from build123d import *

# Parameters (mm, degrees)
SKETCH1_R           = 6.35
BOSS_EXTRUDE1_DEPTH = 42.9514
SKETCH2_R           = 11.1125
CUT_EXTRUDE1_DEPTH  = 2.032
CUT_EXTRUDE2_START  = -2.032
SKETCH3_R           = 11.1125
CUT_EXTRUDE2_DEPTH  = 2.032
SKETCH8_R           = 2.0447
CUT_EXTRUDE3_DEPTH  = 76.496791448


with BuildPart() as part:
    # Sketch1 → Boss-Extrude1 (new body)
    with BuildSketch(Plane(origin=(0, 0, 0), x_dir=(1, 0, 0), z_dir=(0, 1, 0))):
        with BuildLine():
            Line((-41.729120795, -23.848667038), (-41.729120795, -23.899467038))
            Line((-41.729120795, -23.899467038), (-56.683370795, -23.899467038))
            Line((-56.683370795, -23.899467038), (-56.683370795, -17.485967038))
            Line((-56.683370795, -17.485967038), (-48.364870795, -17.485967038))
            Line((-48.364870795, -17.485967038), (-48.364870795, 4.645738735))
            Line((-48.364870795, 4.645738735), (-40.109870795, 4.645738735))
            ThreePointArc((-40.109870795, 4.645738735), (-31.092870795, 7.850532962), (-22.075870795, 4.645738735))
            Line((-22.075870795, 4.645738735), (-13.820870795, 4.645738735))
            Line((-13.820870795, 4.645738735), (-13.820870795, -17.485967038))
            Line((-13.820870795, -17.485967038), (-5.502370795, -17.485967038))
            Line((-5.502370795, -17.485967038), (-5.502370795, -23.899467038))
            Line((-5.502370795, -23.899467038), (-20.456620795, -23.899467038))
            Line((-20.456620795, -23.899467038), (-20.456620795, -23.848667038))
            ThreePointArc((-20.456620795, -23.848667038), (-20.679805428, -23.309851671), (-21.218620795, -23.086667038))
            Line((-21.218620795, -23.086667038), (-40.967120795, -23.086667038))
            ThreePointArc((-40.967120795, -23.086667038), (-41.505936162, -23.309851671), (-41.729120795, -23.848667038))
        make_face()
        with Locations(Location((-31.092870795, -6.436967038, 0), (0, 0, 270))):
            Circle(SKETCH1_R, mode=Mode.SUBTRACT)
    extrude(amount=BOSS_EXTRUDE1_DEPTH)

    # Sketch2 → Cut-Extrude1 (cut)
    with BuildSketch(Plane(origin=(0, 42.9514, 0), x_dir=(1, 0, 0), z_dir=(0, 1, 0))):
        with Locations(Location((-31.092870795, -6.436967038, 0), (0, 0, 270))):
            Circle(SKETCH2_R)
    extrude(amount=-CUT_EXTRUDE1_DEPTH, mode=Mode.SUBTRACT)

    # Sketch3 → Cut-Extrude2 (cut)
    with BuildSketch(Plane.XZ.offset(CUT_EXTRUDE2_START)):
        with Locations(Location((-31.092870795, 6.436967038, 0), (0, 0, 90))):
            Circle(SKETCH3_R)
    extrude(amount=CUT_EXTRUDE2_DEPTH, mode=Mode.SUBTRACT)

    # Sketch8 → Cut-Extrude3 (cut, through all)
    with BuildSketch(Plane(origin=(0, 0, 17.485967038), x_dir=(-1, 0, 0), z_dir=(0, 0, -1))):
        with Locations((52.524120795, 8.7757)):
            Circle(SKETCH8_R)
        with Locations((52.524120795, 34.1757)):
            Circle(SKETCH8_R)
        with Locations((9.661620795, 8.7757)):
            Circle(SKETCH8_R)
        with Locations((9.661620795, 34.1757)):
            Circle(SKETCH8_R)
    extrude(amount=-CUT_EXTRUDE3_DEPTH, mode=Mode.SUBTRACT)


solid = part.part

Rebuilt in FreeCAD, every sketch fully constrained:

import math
import FreeCAD as App
import Part
import Sketcher
Q = App.Units.Quantity

doc = App.newDocument("Part")
body = doc.addObject("PartDesign::Body", "Body")

sketch1 = body.newObject("Sketcher::SketchObject", "Sketch")
sketch1.AttachmentSupport = (doc.getObject("XZ_Plane"), [""])
sketch1.MapMode = "FlatFace"
sketch1.addGeometry([
    Part.LineSegment(App.Vector(-41.73, 23.9, 0), App.Vector(-41.73, 23.85, 0)),
    Part.ArcOfCircle(Part.Circle(App.Vector(-40.97, 23.85, 0), App.Vector(0, 0, 1), 0.76), math.radians(-180), math.radians(-90)),
    Part.LineSegment(App.Vector(-40.97, 23.09, 0), App.Vector(-21.22, 23.09, 0)),
    Part.ArcOfCircle(Part.Circle(App.Vector(-21.22, 23.85, 0), App.Vector(0, 0, 1), 0.76), math.radians(-90), math.radians(0)),
    Part.LineSegment(App.Vector(-20.46, 23.85, 0), App.Vector(-20.46, 23.9, 0)),
    Part.LineSegment(App.Vector(-20.46, 23.9, 0), App.Vector(-5.5, 23.9, 0)),
    Part.LineSegment(App.Vector(-5.5, 23.9, 0), App.Vector(-5.5, 17.49, 0)),
    Part.LineSegment(App.Vector(-5.5, 17.49, 0), App.Vector(-13.82, 17.49, 0)),
    Part.LineSegment(App.Vector(-13.82, 17.49, 0), App.Vector(-13.82, -4.65, 0)),
    Part.LineSegment(App.Vector(-13.82, -4.65, 0), App.Vector(-22.08, -4.65, 0)),
    Part.ArcOfCircle(Part.Circle(App.Vector(-31.09, 6.44, 0), App.Vector(0, 0, 1), 14.29), math.radians(-129), math.radians(-51)),
    Part.LineSegment(App.Vector(-40.11, -4.65, 0), App.Vector(-48.36, -4.65, 0)),
    Part.LineSegment(App.Vector(-48.36, -4.65, 0), App.Vector(-48.36, 17.49, 0)),
    Part.LineSegment(App.Vector(-48.36, 17.49, 0), App.Vector(-56.68, 17.49, 0)),
    Part.LineSegment(App.Vector(-56.68, 17.49, 0), App.Vector(-56.68, 23.9, 0)),
    Part.LineSegment(App.Vector(-56.68, 23.9, 0), App.Vector(-41.73, 23.9, 0)),
    Part.Circle(App.Vector(-31.09, 6.44, 0), App.Vector(0, 0, 1), 6.35),
], False)
sketch1.addConstraint([
    Sketcher.Constraint("Tangent", 0, 2, 1, 1),
    Sketcher.Constraint("Tangent", 1, 2, 2, 1),
    Sketcher.Constraint("Tangent", 2, 2, 3, 1),
    Sketcher.Constraint("Tangent", 3, 2, 4, 1),
    Sketcher.Constraint("Coincident", 4, 2, 5, 1),
    Sketcher.Constraint("Coincident", 5, 2, 6, 1),
    Sketcher.Constraint("Coincident", 6, 2, 7, 1),
    Sketcher.Constraint("Coincident", 7, 2, 8, 1),
    Sketcher.Constraint("Coincident", 8, 2, 9, 1),
    Sketcher.Constraint("Coincident", 9, 2, 10, 2),
    Sketcher.Constraint("Coincident", 10, 1, 11, 1),
    Sketcher.Constraint("Coincident", 11, 2, 12, 1),
    Sketcher.Constraint("Coincident", 12, 2, 13, 1),
    Sketcher.Constraint("Coincident", 13, 2, 14, 1),
    Sketcher.Constraint("Coincident", 14, 2, 15, 1),
    Sketcher.Constraint("Coincident", 15, 2, 0, 1),
    Sketcher.Constraint("Vertical", 0),
    Sketcher.Constraint("Horizontal", 2),
    Sketcher.Constraint("Vertical", 4),
    Sketcher.Constraint("Horizontal", 5),
    Sketcher.Constraint("Vertical", 6),
    Sketcher.Constraint("Horizontal", 7),
    Sketcher.Constraint("Vertical", 8),
    Sketcher.Constraint("Horizontal", 9),
    Sketcher.Constraint("Horizontal", 11),
    Sketcher.Constraint("Vertical", 12),
    Sketcher.Constraint("Horizontal", 13),
    Sketcher.Constraint("Vertical", 14),
    Sketcher.Constraint("Horizontal", 15),
    Sketcher.Constraint("Coincident", 16, 3, 10, 3),
    Sketcher.Constraint("Equal", 1, 3),
    Sketcher.Constraint("Horizontal", 9, 2, 10, 1),
    Sketcher.Constraint("Horizontal", 7, 2, 12, 2),
    Sketcher.Constraint("Horizontal", 5, 2, 14, 2),
    Sketcher.Constraint("Equal", 9, 11),
    Sketcher.Constraint("Equal", 7, 13),
    Sketcher.Constraint("Equal", 5, 15),
    Sketcher.Constraint("Diameter", 16, Q("0.5 in")),
    Sketcher.Constraint("Radius", 1, Q("0.03 in")),
    Sketcher.Constraint("Radius", 10, Q("0.5625 in")),
    Sketcher.Constraint("DistanceX", 9, 2, 9, 1, Q("0.325 in")),
    Sketcher.Constraint("DistanceY", 0, 2, 0, 1, Q("0.002 in")),
    Sketcher.Constraint("DistanceX", 10, 3, 8, 2, Q("0.68 in")),
    Sketcher.Constraint("DistanceX", 2, 1, 2, 2, Q("0.7775 in")),
    Sketcher.Constraint("DistanceX", 7, 2, 7, 1, Q("0.3275 in")),
    Sketcher.Constraint("DistanceY", 6, 2, 6, 1, Q("0.2525 in")),
    Sketcher.Constraint("DistanceY", 10, 3, 4, 2, Q("0.6875 in")),
    Sketcher.Constraint("DistanceX", 1, 3, -1, 1, 40.967121),
    Sketcher.Constraint("DistanceY", 8, 2, -1, 1, 4.645739),
])
pad1 = body.newObject("PartDesign::Pad", "Pad")
pad1.Profile = sketch1
pad1.Length = Q("1.691 in")
pad1.Reversed = True

sketch2 = body.newObject("Sketcher::SketchObject", "Sketch001")
sketch2.AttachmentSupport = (doc.getObject("XZ_Plane"), [""])
sketch2.MapMode = "FlatFace"
sketch2.AttachmentOffset = App.Placement(App.Vector(0, 0, -1.691 * 25.4), App.Rotation())
sketch2.addGeometry(Part.Circle(App.Vector(-31, 6, 0), App.Vector(0, 0, 1), 11), False)
sketch2.addConstraint([
    Sketcher.Constraint("Diameter", 0, Q("0.875 in")),
    Sketcher.Constraint("DistanceX", 0, 3, -1, 1, 31.092871),
    Sketcher.Constraint("DistanceY", -1, 1, 0, 3, 6.436967),
])
pocket1 = body.newObject("PartDesign::Pocket", "Pocket")
pocket1.Profile = sketch2
pocket1.Length = Q("0.08 in")
pocket1.Reversed = True

sketch3 = body.newObject("Sketcher::SketchObject", "Sketch002")
sketch3.AttachmentSupport = (doc.getObject("XZ_Plane"), [""])
sketch3.MapMode = "FlatFace"
sketch3.AttachmentOffset = App.Placement(App.Vector(0, 0, -0.08 * 25.4), App.Rotation())
sketch3.addGeometry(Part.Circle(App.Vector(-31, 6, 0), App.Vector(0, 0, 1), 11), False)
sketch3.addConstraint([
    Sketcher.Constraint("Diameter", 0, Q("0.875 in")),
    Sketcher.Constraint("DistanceX", 0, 3, -1, 1, 31.092871),
    Sketcher.Constraint("DistanceY", -1, 1, 0, 3, 6.436967),
])
pocket2 = body.newObject("PartDesign::Pocket", "Pocket001")
pocket2.Profile = sketch3
pocket2.Length = Q("0.08 in")
pocket2.Reversed = True

sketch4 = body.newObject("Sketcher::SketchObject", "Sketch003")
sketch4.AttachmentSupport = (doc.getObject("XY_Plane"), [""])
sketch4.MapMode = "FlatFace"
sketch4.AttachmentOffset = App.Placement(App.Vector(0, 0, 17.485967), App.Rotation())
sketch4.addGeometry([
    Part.Circle(App.Vector(-52.5, 8.8, 0), App.Vector(0, 0, 1), 2),
    Part.Circle(App.Vector(-52.5, 34.2, 0), App.Vector(0, 0, 1), 2),
    Part.Circle(App.Vector(-9.7, 8.8, 0), App.Vector(0, 0, 1), 2),
    Part.Circle(App.Vector(-9.7, 34.2, 0), App.Vector(0, 0, 1), 2),
], False)
sketch4.addConstraint([
    Sketcher.Constraint("Equal", 0, 1),
    Sketcher.Constraint("Equal", 1, 2),
    Sketcher.Constraint("Equal", 2, 3),
    Sketcher.Constraint("Horizontal", 0, 3, 2, 3),
    Sketcher.Constraint("Horizontal", 1, 3, 3, 3),
    Sketcher.Constraint("Vertical", 0, 3, 1, 3),
    Sketcher.Constraint("Vertical", 2, 3, 3, 3),
    Sketcher.Constraint("Diameter", 0, Q("0.161 in")),
    Sketcher.Constraint("DistanceY", 0, 3, 1, 3, Q("1 in")),
    Sketcher.Constraint("DistanceX", 0, 3, 2, 3, Q("1.6875 in")),
    Sketcher.Constraint("DistanceY", -1, 1, 0, 3, Q("0.3455 in")),
    Sketcher.Constraint("DistanceX", 0, 3, -1, 1, 52.524121),
])
pocket3 = body.newObject("PartDesign::Pocket", "Pocket002")
pocket3.Profile = sketch4
pocket3.Type = "ThroughAll"
pocket3.Reversed = True

doc.recompute()
